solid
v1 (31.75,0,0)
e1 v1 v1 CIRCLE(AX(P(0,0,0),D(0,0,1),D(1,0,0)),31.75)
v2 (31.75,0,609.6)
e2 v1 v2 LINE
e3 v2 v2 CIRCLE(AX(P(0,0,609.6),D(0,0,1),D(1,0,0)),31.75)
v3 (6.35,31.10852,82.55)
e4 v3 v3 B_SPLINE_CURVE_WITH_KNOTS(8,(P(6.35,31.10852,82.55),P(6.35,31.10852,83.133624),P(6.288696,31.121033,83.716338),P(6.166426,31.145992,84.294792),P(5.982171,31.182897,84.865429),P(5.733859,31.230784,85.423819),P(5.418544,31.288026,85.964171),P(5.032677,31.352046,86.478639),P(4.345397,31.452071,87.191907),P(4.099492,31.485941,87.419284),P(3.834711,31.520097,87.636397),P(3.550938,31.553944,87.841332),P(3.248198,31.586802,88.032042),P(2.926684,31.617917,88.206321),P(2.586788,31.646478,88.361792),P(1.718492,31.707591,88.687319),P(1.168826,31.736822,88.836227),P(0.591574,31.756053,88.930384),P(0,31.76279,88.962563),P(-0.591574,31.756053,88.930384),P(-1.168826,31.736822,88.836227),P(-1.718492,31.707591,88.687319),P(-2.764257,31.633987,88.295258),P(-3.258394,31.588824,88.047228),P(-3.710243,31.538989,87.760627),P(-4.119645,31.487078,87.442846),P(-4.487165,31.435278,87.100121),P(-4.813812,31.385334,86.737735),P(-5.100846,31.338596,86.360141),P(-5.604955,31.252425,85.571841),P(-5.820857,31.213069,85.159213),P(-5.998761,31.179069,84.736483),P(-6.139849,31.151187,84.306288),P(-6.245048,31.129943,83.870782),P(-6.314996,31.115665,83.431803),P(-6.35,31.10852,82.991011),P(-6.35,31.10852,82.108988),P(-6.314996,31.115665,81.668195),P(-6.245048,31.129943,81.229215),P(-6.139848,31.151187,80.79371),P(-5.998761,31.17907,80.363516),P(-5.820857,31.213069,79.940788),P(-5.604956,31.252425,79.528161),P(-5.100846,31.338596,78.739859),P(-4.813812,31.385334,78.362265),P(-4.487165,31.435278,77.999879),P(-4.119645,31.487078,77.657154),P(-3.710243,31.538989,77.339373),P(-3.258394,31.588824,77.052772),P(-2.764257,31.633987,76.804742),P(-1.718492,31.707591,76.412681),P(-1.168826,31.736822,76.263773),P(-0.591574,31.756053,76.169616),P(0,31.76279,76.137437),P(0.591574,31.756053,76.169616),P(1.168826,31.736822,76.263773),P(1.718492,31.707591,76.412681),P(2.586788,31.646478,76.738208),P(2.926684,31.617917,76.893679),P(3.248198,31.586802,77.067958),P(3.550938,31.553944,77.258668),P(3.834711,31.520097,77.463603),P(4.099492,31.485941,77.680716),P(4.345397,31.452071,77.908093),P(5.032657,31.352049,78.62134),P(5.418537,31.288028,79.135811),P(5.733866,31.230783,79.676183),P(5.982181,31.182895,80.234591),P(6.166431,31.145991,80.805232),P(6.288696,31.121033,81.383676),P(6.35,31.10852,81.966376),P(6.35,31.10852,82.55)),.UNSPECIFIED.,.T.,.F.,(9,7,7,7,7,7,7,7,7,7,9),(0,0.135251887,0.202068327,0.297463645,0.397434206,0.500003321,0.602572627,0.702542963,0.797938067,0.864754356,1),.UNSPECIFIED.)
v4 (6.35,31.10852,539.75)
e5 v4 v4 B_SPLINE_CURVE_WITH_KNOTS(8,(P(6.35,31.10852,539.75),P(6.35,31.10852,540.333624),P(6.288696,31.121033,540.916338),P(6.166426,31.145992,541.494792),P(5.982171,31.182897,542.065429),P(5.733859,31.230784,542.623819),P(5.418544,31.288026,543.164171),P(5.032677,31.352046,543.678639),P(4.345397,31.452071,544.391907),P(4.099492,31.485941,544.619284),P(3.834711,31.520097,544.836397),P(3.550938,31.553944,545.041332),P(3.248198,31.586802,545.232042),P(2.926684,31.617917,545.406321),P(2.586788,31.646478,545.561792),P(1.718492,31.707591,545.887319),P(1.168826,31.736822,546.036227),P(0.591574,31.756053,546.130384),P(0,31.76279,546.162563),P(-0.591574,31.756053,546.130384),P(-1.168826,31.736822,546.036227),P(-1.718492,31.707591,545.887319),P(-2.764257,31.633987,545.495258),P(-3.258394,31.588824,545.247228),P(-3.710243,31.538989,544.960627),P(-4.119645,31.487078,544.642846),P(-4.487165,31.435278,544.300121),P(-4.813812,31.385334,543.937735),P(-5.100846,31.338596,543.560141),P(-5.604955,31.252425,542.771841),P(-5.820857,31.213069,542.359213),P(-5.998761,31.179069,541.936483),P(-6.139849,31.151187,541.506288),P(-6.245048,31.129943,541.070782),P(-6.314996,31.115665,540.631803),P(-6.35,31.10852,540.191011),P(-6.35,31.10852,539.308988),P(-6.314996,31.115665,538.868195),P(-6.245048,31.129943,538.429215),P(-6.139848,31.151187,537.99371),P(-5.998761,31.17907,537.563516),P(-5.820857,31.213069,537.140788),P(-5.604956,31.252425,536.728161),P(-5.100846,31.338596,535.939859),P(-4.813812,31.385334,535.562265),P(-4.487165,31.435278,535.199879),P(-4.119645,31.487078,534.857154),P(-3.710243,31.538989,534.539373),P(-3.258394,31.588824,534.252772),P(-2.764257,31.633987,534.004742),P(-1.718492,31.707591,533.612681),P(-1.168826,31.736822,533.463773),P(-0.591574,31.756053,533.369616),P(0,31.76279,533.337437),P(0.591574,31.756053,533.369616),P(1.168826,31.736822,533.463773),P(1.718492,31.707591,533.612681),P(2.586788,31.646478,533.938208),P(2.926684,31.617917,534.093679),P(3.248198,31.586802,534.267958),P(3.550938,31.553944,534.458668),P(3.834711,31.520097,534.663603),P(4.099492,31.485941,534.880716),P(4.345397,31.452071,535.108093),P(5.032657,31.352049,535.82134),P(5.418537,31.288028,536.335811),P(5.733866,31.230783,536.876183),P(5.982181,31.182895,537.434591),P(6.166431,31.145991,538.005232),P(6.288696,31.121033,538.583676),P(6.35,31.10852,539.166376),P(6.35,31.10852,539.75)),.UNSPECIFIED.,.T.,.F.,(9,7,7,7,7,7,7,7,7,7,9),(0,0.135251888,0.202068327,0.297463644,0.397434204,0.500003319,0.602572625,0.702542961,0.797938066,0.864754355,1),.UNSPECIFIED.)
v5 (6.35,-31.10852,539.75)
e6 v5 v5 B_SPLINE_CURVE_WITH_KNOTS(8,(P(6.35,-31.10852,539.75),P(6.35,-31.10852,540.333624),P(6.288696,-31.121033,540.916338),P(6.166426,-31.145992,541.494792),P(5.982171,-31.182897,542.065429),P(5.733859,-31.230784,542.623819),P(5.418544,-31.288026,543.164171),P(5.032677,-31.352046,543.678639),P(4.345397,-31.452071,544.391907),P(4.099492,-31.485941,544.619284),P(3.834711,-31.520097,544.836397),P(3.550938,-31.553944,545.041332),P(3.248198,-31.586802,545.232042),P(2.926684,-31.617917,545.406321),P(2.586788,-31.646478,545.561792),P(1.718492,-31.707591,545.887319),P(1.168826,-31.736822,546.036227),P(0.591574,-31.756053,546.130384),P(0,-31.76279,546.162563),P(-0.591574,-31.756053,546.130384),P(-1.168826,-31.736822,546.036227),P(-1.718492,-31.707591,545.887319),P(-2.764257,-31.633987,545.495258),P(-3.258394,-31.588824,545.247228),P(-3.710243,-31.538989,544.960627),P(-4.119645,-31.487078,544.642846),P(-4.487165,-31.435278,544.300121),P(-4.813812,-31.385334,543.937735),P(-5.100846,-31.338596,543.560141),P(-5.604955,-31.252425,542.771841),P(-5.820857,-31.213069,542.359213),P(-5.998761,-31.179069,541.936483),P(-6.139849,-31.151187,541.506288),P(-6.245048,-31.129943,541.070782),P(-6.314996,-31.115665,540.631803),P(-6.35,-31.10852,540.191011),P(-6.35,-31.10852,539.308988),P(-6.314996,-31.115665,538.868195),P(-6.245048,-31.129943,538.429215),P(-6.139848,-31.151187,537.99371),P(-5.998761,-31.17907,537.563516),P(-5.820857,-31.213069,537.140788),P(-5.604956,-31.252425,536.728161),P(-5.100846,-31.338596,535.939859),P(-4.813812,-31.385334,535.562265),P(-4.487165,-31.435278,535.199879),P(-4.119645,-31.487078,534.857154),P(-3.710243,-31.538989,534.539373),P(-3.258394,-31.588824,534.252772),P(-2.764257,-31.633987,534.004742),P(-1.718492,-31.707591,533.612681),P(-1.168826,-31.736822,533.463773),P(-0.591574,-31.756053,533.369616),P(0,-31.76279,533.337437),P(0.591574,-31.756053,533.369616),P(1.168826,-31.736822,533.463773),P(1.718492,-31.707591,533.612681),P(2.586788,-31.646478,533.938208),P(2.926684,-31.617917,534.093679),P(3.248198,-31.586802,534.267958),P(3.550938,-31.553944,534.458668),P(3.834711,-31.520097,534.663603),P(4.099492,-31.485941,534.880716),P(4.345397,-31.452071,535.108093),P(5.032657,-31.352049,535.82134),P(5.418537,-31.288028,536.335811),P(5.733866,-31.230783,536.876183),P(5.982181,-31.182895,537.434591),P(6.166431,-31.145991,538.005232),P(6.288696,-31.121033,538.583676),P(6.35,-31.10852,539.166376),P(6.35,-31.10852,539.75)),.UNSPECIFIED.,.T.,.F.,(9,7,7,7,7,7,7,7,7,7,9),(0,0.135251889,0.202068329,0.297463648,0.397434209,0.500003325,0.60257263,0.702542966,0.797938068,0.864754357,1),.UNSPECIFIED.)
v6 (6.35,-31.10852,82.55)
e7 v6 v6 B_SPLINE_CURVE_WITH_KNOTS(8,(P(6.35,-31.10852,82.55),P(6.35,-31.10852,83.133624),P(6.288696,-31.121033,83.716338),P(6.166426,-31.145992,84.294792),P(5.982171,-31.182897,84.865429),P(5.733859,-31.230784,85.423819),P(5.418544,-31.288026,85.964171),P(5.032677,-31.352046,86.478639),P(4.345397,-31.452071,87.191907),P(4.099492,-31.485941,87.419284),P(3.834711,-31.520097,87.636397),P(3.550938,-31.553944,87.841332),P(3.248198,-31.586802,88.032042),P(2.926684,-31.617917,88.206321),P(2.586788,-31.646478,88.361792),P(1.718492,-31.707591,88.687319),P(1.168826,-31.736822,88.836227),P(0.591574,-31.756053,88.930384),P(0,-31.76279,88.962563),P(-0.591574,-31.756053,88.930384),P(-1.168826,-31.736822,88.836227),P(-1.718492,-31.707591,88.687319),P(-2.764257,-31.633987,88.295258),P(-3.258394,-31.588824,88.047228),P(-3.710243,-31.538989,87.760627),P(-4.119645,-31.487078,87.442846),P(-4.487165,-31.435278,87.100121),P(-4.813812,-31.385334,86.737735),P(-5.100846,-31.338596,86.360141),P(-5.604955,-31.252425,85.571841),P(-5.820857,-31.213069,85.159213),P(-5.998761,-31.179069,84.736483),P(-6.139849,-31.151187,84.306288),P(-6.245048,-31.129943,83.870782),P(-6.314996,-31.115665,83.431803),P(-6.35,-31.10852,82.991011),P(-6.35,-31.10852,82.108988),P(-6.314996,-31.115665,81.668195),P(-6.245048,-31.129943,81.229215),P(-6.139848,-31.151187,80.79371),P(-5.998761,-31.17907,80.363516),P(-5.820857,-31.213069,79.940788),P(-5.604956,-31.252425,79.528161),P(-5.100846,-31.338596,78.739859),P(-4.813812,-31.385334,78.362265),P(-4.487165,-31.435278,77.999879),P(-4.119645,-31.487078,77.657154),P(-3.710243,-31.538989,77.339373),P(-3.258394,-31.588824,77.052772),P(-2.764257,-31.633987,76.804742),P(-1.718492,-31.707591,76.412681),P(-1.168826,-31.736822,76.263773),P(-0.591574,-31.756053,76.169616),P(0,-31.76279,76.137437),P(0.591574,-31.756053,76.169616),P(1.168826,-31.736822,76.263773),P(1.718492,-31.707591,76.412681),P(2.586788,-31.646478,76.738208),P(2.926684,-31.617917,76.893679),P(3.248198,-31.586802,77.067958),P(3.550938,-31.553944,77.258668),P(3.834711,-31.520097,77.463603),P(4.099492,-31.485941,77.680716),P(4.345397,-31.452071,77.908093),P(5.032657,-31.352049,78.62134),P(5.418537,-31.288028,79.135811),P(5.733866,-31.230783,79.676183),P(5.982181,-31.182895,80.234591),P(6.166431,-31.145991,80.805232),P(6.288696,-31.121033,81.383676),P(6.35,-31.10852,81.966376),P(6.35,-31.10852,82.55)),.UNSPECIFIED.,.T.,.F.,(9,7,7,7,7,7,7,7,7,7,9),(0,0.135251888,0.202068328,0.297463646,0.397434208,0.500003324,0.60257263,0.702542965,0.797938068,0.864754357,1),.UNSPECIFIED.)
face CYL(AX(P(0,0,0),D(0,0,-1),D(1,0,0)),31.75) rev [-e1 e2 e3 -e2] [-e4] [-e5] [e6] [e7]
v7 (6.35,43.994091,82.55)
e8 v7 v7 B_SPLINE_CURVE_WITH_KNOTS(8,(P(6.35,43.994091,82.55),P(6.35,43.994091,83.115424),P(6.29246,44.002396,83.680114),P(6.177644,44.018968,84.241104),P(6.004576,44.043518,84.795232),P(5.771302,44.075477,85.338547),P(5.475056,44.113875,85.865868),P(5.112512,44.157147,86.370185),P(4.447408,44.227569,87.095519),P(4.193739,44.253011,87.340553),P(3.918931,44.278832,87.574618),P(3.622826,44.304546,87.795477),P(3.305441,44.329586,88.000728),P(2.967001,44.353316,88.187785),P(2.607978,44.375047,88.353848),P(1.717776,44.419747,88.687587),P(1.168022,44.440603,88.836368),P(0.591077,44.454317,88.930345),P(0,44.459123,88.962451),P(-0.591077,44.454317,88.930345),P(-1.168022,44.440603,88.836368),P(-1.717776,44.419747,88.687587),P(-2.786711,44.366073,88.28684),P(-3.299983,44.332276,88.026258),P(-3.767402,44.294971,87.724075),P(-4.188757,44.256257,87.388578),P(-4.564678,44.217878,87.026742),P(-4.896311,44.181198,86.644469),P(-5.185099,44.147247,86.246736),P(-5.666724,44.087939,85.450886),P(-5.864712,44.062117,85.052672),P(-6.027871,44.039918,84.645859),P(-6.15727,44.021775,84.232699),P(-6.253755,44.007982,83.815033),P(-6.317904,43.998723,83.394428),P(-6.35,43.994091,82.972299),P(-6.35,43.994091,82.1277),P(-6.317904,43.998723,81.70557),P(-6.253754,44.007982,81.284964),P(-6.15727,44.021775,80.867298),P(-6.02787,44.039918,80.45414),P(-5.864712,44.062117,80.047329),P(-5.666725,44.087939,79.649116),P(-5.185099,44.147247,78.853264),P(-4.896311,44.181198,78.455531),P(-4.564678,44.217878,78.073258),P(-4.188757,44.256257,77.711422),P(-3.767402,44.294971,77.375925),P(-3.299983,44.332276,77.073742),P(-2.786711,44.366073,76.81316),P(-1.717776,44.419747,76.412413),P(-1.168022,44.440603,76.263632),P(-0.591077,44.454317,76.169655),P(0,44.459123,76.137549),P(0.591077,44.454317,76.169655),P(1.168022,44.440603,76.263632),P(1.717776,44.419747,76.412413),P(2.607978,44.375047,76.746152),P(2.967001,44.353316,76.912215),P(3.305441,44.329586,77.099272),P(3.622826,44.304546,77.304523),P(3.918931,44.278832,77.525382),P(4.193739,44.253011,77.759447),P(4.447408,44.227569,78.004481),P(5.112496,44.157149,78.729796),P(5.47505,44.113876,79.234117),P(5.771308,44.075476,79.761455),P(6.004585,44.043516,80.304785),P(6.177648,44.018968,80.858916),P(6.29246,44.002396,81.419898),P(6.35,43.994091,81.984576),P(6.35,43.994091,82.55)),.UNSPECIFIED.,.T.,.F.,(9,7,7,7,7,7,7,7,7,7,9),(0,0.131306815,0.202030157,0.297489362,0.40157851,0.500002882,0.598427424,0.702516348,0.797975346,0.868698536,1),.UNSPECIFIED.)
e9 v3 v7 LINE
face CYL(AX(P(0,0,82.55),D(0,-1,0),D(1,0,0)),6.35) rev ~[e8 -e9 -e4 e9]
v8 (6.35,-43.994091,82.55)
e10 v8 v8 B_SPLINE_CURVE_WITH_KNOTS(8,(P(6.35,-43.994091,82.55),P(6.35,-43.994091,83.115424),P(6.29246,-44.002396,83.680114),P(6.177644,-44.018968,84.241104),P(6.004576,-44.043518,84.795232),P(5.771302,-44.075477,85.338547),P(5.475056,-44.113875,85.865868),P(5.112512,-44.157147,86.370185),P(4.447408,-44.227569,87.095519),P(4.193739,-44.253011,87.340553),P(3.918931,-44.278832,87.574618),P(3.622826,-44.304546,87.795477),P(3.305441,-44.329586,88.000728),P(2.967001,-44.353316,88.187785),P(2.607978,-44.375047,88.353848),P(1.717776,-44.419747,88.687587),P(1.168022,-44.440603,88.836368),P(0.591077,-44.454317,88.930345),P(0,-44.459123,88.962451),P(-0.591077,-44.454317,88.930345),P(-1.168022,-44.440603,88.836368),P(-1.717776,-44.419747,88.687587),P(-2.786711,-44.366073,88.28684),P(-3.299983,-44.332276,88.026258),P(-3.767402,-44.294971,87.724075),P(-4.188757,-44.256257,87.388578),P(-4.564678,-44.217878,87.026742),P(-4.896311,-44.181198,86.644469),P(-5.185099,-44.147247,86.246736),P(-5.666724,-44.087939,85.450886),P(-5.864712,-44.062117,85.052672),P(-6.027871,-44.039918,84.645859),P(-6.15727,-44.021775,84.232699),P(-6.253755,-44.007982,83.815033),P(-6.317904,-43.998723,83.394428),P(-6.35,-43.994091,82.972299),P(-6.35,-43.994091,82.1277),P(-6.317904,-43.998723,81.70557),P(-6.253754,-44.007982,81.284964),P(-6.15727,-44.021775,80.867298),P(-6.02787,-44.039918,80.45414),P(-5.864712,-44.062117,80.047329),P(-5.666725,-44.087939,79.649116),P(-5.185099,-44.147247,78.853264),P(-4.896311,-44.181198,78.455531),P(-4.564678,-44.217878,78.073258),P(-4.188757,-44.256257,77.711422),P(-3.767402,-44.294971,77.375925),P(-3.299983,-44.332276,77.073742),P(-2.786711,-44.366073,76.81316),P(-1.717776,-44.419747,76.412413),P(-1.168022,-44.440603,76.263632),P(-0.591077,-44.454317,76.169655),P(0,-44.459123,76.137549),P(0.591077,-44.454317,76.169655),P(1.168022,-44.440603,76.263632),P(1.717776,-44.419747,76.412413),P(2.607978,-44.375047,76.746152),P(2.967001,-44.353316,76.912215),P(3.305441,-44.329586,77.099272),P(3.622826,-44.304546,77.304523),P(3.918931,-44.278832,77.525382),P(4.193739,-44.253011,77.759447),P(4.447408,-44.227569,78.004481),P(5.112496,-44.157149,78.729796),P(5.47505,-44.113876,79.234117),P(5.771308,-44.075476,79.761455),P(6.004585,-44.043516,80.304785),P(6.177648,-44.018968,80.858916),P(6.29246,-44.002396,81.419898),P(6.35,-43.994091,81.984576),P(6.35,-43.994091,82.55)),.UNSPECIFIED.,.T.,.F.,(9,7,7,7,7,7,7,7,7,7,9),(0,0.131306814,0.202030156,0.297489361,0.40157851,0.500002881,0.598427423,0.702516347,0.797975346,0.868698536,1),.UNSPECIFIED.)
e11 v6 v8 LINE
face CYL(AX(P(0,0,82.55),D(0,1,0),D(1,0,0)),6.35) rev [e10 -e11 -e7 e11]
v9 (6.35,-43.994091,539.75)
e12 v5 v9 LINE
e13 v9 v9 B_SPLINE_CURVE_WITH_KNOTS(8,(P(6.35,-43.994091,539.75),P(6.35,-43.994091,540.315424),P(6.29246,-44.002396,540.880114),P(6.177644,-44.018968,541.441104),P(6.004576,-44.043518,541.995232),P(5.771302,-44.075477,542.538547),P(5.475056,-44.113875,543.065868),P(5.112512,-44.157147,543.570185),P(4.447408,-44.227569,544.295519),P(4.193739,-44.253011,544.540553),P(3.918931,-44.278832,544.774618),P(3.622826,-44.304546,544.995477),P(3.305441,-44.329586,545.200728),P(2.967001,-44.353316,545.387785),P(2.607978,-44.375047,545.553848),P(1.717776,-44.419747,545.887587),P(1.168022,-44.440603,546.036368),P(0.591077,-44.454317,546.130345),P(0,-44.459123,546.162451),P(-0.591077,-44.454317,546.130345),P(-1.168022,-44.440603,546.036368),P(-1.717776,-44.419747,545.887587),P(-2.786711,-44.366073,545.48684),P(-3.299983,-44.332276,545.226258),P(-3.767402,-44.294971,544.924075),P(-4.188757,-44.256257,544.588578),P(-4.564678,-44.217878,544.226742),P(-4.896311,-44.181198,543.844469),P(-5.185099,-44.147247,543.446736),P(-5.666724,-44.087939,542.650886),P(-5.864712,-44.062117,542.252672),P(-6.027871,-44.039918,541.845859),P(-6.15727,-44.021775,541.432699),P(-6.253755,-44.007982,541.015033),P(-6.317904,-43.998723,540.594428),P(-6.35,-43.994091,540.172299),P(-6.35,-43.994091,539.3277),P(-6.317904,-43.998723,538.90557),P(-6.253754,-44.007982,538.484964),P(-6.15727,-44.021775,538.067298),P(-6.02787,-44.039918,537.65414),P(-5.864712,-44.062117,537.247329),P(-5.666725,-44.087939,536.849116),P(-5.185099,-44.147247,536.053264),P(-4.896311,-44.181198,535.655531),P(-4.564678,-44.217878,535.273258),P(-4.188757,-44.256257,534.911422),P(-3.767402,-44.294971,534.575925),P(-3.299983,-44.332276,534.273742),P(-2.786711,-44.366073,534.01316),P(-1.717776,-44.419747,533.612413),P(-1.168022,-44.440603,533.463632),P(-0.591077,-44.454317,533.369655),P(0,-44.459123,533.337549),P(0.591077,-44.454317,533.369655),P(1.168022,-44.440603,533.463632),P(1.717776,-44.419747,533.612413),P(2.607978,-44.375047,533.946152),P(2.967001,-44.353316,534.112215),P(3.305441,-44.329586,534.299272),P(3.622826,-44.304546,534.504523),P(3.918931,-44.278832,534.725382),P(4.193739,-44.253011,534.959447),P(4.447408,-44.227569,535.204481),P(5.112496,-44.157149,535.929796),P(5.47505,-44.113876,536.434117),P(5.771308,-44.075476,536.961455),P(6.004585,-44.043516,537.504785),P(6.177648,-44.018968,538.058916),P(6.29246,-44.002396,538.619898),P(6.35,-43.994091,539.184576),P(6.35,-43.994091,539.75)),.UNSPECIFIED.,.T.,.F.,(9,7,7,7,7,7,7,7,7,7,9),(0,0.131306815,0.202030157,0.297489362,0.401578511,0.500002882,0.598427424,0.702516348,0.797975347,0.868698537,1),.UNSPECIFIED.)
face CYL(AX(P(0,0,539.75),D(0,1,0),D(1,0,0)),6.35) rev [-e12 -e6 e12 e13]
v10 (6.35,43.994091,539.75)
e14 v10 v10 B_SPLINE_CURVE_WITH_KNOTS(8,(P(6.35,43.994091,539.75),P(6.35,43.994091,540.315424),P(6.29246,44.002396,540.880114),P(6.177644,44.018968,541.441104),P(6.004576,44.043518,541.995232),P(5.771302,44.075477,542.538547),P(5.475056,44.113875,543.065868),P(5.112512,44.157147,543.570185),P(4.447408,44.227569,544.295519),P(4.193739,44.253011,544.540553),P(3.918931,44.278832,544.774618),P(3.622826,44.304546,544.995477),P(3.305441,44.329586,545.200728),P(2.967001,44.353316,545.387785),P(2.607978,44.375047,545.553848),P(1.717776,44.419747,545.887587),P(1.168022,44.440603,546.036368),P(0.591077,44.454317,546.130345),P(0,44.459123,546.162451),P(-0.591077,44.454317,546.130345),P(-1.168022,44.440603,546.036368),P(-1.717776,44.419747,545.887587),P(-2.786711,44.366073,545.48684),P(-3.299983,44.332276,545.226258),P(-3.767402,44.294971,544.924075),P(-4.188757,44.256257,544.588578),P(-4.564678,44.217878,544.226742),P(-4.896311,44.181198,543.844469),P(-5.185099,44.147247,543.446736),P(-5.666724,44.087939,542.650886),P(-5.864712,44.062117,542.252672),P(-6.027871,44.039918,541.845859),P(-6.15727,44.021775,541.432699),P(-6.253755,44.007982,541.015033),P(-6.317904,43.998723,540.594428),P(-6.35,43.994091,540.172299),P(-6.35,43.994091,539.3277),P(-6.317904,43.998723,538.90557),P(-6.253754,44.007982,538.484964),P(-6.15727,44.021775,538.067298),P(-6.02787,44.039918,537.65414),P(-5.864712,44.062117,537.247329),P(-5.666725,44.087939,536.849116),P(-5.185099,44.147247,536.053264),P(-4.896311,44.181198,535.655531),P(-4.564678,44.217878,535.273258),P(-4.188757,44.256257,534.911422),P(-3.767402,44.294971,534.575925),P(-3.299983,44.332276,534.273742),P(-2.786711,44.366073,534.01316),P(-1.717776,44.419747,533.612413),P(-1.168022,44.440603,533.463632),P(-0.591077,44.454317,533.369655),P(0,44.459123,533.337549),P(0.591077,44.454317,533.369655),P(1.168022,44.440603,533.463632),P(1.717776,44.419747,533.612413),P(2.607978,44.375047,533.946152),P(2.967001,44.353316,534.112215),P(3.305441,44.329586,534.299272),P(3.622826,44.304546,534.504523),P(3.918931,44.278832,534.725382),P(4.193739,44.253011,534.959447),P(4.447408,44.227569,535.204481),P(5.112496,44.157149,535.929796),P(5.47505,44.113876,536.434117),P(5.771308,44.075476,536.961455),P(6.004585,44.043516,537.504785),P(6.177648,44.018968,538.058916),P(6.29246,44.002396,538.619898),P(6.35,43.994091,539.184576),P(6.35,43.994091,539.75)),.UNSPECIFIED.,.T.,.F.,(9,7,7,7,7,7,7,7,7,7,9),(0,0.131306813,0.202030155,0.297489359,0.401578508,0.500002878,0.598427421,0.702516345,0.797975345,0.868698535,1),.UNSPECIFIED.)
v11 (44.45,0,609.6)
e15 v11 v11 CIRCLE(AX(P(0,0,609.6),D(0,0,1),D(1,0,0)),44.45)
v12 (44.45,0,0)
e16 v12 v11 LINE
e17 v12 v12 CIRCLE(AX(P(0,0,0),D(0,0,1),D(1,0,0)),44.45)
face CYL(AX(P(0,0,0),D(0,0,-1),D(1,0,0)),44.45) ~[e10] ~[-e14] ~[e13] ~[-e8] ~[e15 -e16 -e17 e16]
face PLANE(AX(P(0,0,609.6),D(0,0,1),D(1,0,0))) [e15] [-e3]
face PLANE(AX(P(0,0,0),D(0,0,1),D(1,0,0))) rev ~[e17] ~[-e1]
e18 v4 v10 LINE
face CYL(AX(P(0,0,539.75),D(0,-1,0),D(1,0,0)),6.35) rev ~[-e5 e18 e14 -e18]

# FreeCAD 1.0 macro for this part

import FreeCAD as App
import Part
import Sketcher
from FreeCAD import Vector
Q = App.Units.Quantity

doc = App.newDocument("Part")
body = doc.addObject("PartDesign::Body", "Body")

sketch1 = body.newObject("Sketcher::SketchObject", "Sketch")
sketch1.AttachmentSupport = (doc.getObject("XY_Plane"), [""])
sketch1.MapMode = "FlatFace"
sketch1.addGeometry([
    Part.Circle(Vector(0, 0, 0), Vector(0, 0, 1), 44),
    Part.Circle(Vector(0, 0, 0), Vector(0, 0, 1), 32),
], False)
sketch1.addConstraint([
    Sketcher.Constraint("Coincident", 0, 3, -1, 1),
    Sketcher.Constraint("Coincident", 1, 3, -1, 1),
    Sketcher.Constraint("Diameter", 0, Q("3.5 in")),
    Sketcher.Constraint("Diameter", 1, Q("2.5 in")),
])
pad1 = body.newObject("PartDesign::Pad", "Pad")
pad1.Profile = sketch1
pad1.Length = Q("24 in")

sketch2 = body.newObject("Sketcher::SketchObject", "Sketch001")
sketch2.AttachmentSupport = (doc.getObject("XZ_Plane"), [""])
sketch2.MapMode = "FlatFace"
sketch2.addGeometry([
    Part.Circle(Vector(0, 540, 0), Vector(0, 0, 1), 6),
    Part.Circle(Vector(0, 83, 0), Vector(0, 0, 1), 6),
], False)
sketch2.addConstraint([
    Sketcher.Constraint("Equal", 0, 1),
    Sketcher.Constraint("PointOnObject", 0, 3, -2),
    Sketcher.Constraint("PointOnObject", 1, 3, -2),
    Sketcher.Constraint("Diameter", 0, Q("0.5 in")),
    Sketcher.Constraint("DistanceY", 1, 3, 0, 3, Q("18 in")),
    Sketcher.Constraint("DistanceY", -1, 1, 0, 3, Q("21.25 in")),
])
pocket1 = body.newObject("PartDesign::Pocket", "Pocket")
pocket1.Profile = sketch2
pocket1.Type = "ThroughAll"
pocket1.Reversed = True

sketch3 = body.newObject("Sketcher::SketchObject", "Sketch002")
sketch3.AttachmentSupport = (doc.getObject("XZ_Plane"), [""])
sketch3.MapMode = "FlatFace"
sketch3.addGeometry([
    Part.Circle(Vector(0, 540, 0), Vector(0, 0, 1), 6),
    Part.Circle(Vector(0, 83, 0), Vector(0, 0, 1), 6),
], False)
sketch3.addConstraint([
    Sketcher.Constraint("Equal", 0, 1),
    Sketcher.Constraint("PointOnObject", 0, 3, -2),
    Sketcher.Constraint("PointOnObject", 1, 3, -2),
    Sketcher.Constraint("Diameter", 0, Q("0.5 in")),
    Sketcher.Constraint("DistanceY", 1, 3, 0, 3, Q("18 in")),
    Sketcher.Constraint("DistanceY", -1, 1, 0, 3, Q("21.25 in")),
])
pocket2 = body.newObject("PartDesign::Pocket", "Pocket001")
pocket2.Profile = sketch3
pocket2.Type = "ThroughAll"

doc.recompute()
